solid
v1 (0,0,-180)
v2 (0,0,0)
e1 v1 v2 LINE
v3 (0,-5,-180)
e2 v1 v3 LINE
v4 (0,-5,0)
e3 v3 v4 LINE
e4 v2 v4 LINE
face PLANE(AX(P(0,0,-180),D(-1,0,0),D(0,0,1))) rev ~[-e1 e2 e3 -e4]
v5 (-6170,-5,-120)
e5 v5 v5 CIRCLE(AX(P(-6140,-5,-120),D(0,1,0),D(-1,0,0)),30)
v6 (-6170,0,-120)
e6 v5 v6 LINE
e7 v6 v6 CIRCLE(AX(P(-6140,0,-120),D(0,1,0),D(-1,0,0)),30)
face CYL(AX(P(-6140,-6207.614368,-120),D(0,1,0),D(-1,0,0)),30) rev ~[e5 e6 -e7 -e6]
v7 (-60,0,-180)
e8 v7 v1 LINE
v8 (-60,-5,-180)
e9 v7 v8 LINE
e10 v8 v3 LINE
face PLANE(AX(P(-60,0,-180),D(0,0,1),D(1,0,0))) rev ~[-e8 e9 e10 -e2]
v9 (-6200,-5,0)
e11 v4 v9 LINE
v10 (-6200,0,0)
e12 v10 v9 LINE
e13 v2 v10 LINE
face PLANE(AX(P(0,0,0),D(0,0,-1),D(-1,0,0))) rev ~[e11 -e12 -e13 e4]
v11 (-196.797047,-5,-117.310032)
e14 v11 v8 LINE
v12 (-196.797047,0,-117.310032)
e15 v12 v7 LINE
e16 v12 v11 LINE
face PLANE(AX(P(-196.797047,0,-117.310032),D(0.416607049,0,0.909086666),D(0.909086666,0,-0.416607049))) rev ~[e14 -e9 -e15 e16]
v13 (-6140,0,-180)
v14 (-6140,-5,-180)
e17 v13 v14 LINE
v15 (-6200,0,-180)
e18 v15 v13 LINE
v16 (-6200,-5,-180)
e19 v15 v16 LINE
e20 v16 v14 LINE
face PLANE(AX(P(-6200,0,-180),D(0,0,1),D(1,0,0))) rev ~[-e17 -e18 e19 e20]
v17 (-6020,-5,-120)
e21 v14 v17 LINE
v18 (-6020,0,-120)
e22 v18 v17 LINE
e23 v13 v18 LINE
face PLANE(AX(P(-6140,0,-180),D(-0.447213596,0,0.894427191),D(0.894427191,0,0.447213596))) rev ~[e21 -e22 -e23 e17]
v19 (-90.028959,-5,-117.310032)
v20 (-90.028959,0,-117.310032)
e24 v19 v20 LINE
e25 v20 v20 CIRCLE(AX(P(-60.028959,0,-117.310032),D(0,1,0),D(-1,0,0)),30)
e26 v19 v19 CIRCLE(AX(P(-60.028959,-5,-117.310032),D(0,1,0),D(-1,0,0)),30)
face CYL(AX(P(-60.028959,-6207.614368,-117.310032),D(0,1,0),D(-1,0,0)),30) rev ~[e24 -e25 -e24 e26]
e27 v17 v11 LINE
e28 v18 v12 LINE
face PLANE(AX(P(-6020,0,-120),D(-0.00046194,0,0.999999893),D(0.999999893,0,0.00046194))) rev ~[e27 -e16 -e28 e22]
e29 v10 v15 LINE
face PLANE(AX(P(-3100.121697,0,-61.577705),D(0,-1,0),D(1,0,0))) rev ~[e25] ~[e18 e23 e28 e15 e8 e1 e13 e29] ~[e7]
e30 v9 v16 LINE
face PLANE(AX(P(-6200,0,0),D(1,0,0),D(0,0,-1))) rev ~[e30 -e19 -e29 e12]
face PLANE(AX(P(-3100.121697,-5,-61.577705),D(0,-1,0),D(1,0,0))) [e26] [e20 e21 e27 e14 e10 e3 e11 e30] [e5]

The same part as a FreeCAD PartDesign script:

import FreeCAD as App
import Part
import Sketcher
from FreeCAD import Vector


def add_polygon(sketch, points):
    """Adds a closed chain of lines whose ends are joined by coincident constraints."""
    first, n = sketch.GeometryCount, len(points)
    for a, b in zip(points, points[1:] + points[:1]):
        sketch.addGeometry(Part.LineSegment(App.Vector(*a, 0), App.Vector(*b, 0)), False)
    for i in range(n):
        sketch.addConstraint(Sketcher.Constraint("Coincident", first + i, 2, first + (i + 1) % n, 1))

doc = App.newDocument("Part")
body = doc.addObject("PartDesign::Body", "Body")

# Sketch on XZ plane
sketch1 = doc.addObject("Sketcher::SketchObject", "Sketch")
body.addObject(sketch1)
sketch1.AttachmentSupport = (doc.XZ_Plane, [""])
sketch1.MapMode = "FlatFace"
add_polygon(sketch1, [(0, -180), (0, 0), (-6200, 0), (-6200, -180), (-6140, -180), (-6020, -120), (-196.797047, -117.310032), (-60, -180)])  # lines 0-7
sketch1.addConstraint([
    Sketcher.Constraint("Vertical", 0),
    Sketcher.Constraint("Horizontal", 1),
    Sketcher.Constraint("Vertical", 2),
    Sketcher.Constraint("Horizontal", 3),
    Sketcher.Constraint("Horizontal", 7),
    Sketcher.Constraint("Coincident", 0, 2, -1, 1),
    Sketcher.Constraint("Horizontal", 3, 2, 6, 2),
    Sketcher.Constraint("Equal", 3, 7),
    Sketcher.Constraint("DistanceX", 1, 2, 1, 1, 6200.0),
    Sketcher.Constraint("DistanceX", 3, 1, 3, 2, 60.0),
    Sketcher.Constraint("DistanceY", 0, 1, 0, 2, 180.0),
    Sketcher.Constraint("DistanceX", 4, 2, -1, 1, 6020.0),
    Sketcher.Constraint("DistanceY", 4, 2, -1, 1, 120.0),
    Sketcher.Constraint("Distance", 5, 5823.203574),
    Sketcher.Constraint("Distance", 6, 150.477454),
])
pad1 = doc.addObject("PartDesign::Pad", "Pad")
body.addObject(pad1)
pad1.Profile = sketch1
pad1.Length = 5

# Sketch on XZ plane
sketch2 = doc.addObject("Sketcher::SketchObject", "Sketch001")
body.addObject(sketch2)
sketch2.AttachmentSupport = (doc.XZ_Plane, [""])
sketch2.MapMode = "FlatFace"
sketch2.AttachmentOffset = App.Placement(Vector(0, 0, 5), App.Rotation())
sketch2.addGeometry([
    Part.Circle(Vector(-60.028959, -117.310032, 0), Vector(0, 0, 1), 30),
    Part.Circle(Vector(-6140, -120, 0), Vector(0, 0, 1), 30),
], False)
sketch2.addConstraint([
    Sketcher.Constraint("Equal", 0, 1),
    Sketcher.Constraint("Diameter", 0, 60.0),
    Sketcher.Constraint("DistanceX", 1, 3, -1, 1, 6140.0),
    Sketcher.Constraint("DistanceY", 1, 3, -1, 1, 120.0),
    Sketcher.Constraint("DistanceX", 0, 3, -1, 1, 60.028959),
    Sketcher.Constraint("DistanceY", 0, 3, -1, 1, 117.310032),
])
doc.recompute()
hole = doc.addObject("PartDesign::Hole", "Hole")
body.addObject(hole)
hole.Profile = sketch2
hole.ThreadType = "None"
hole.Diameter = 60
hole.DepthType = "ThroughAll"

doc.recompute()
